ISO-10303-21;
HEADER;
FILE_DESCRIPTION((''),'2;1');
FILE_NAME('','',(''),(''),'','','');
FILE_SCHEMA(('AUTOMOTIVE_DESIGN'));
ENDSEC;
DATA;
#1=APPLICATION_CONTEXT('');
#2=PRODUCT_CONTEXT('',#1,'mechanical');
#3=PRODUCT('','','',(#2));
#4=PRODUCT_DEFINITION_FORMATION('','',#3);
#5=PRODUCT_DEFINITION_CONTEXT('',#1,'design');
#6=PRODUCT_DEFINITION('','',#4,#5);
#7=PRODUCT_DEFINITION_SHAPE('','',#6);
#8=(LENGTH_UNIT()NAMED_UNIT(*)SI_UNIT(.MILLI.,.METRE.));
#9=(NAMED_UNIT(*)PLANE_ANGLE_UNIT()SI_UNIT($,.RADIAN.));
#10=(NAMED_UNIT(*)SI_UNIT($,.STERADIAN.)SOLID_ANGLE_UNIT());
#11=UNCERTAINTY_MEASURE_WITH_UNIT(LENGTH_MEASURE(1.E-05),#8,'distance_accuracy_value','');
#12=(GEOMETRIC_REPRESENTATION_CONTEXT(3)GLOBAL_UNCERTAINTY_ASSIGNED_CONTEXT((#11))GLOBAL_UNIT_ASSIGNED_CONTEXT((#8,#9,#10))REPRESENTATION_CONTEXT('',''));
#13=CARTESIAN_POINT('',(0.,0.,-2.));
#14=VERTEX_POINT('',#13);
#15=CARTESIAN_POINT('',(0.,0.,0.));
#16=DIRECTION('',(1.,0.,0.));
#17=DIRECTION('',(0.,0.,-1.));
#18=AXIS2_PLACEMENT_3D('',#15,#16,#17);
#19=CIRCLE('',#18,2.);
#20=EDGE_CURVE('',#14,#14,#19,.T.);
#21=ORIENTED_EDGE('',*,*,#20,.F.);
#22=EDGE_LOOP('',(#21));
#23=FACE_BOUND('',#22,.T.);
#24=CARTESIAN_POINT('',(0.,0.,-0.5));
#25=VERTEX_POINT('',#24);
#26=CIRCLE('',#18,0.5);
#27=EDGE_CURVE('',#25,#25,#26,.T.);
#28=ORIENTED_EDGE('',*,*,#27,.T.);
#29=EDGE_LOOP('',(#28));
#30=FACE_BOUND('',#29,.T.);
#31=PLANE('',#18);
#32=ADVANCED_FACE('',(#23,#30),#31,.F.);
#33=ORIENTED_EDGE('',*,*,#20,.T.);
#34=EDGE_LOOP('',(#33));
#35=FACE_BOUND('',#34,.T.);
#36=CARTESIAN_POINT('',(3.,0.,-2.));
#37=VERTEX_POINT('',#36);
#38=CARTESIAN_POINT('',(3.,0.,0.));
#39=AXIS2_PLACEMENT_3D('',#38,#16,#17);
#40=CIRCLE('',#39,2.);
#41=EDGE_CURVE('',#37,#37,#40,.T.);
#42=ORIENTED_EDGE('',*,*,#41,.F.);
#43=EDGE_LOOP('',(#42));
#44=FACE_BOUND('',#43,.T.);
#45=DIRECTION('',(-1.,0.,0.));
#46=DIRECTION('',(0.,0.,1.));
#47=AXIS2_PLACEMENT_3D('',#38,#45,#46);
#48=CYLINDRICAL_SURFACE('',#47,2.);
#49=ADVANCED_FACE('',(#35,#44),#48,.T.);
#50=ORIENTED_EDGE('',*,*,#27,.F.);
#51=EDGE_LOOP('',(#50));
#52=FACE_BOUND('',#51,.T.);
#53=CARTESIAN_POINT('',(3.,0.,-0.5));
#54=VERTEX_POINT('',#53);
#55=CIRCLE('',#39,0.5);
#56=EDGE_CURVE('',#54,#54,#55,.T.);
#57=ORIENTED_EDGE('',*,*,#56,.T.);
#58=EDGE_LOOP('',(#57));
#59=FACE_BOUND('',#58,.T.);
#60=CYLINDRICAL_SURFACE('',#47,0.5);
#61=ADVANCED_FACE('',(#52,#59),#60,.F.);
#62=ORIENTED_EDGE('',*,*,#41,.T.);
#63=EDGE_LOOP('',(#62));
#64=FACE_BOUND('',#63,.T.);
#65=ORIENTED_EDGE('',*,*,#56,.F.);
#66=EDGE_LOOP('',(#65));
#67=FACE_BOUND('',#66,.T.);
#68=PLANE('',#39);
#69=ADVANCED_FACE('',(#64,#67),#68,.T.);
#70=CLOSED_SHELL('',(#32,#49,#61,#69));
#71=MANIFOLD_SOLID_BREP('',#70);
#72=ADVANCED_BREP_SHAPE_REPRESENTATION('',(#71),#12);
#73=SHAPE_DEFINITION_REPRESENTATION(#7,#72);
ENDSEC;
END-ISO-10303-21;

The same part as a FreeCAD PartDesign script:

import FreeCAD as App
import Part
import Sketcher

doc = App.newDocument("Part")
params = doc.addObject("Spreadsheet::Sheet", "Params")
for row, (alias, value) in enumerate([
    ("sketch1_diameter", "4 mm"),
    ("sketch1_diameter2", "1 mm"),
    ("pad1_length", "3 mm"),
], start=1):
    params.set(f"A{row}", alias)
    params.set(f"B{row}", "=" + value)
    params.setAlias(f"B{row}", alias)

body = doc.addObject("PartDesign::Body", "Body")

sketch1 = doc.addObject("Sketcher::SketchObject", "Sketch")
body.addObject(sketch1)
sketch1.AttachmentSupport = (doc.YZ_Plane, [""])
sketch1.MapMode = "FlatFace"
sketch1.addGeometry(Part.Circle(App.Vector(0, 0, 0), App.Vector(0, 0, 1), 2), False)
sketch1.addGeometry(Part.Circle(App.Vector(0, 0, 0), App.Vector(0, 0, 1), 0.5), False)
sketch1.addConstraint(Sketcher.Constraint("Coincident", 0, 3, -1, 1))
sketch1.addConstraint(Sketcher.Constraint("Coincident", 1, 3, -1, 1))
sketch1.addConstraint(Sketcher.Constraint("Diameter", 0, 4.0))
sketch1.addConstraint(Sketcher.Constraint("Diameter", 1, 1.0))
sketch1.setExpression("Constraints[2]", "Params.sketch1_diameter")
sketch1.setExpression("Constraints[3]", "Params.sketch1_diameter2")
pad1 = doc.addObject("PartDesign::Pad", "Pad")
body.addObject(pad1)
pad1.Profile = sketch1
pad1.setExpression("Length", "Params.pad1_length")

doc.recompute()
